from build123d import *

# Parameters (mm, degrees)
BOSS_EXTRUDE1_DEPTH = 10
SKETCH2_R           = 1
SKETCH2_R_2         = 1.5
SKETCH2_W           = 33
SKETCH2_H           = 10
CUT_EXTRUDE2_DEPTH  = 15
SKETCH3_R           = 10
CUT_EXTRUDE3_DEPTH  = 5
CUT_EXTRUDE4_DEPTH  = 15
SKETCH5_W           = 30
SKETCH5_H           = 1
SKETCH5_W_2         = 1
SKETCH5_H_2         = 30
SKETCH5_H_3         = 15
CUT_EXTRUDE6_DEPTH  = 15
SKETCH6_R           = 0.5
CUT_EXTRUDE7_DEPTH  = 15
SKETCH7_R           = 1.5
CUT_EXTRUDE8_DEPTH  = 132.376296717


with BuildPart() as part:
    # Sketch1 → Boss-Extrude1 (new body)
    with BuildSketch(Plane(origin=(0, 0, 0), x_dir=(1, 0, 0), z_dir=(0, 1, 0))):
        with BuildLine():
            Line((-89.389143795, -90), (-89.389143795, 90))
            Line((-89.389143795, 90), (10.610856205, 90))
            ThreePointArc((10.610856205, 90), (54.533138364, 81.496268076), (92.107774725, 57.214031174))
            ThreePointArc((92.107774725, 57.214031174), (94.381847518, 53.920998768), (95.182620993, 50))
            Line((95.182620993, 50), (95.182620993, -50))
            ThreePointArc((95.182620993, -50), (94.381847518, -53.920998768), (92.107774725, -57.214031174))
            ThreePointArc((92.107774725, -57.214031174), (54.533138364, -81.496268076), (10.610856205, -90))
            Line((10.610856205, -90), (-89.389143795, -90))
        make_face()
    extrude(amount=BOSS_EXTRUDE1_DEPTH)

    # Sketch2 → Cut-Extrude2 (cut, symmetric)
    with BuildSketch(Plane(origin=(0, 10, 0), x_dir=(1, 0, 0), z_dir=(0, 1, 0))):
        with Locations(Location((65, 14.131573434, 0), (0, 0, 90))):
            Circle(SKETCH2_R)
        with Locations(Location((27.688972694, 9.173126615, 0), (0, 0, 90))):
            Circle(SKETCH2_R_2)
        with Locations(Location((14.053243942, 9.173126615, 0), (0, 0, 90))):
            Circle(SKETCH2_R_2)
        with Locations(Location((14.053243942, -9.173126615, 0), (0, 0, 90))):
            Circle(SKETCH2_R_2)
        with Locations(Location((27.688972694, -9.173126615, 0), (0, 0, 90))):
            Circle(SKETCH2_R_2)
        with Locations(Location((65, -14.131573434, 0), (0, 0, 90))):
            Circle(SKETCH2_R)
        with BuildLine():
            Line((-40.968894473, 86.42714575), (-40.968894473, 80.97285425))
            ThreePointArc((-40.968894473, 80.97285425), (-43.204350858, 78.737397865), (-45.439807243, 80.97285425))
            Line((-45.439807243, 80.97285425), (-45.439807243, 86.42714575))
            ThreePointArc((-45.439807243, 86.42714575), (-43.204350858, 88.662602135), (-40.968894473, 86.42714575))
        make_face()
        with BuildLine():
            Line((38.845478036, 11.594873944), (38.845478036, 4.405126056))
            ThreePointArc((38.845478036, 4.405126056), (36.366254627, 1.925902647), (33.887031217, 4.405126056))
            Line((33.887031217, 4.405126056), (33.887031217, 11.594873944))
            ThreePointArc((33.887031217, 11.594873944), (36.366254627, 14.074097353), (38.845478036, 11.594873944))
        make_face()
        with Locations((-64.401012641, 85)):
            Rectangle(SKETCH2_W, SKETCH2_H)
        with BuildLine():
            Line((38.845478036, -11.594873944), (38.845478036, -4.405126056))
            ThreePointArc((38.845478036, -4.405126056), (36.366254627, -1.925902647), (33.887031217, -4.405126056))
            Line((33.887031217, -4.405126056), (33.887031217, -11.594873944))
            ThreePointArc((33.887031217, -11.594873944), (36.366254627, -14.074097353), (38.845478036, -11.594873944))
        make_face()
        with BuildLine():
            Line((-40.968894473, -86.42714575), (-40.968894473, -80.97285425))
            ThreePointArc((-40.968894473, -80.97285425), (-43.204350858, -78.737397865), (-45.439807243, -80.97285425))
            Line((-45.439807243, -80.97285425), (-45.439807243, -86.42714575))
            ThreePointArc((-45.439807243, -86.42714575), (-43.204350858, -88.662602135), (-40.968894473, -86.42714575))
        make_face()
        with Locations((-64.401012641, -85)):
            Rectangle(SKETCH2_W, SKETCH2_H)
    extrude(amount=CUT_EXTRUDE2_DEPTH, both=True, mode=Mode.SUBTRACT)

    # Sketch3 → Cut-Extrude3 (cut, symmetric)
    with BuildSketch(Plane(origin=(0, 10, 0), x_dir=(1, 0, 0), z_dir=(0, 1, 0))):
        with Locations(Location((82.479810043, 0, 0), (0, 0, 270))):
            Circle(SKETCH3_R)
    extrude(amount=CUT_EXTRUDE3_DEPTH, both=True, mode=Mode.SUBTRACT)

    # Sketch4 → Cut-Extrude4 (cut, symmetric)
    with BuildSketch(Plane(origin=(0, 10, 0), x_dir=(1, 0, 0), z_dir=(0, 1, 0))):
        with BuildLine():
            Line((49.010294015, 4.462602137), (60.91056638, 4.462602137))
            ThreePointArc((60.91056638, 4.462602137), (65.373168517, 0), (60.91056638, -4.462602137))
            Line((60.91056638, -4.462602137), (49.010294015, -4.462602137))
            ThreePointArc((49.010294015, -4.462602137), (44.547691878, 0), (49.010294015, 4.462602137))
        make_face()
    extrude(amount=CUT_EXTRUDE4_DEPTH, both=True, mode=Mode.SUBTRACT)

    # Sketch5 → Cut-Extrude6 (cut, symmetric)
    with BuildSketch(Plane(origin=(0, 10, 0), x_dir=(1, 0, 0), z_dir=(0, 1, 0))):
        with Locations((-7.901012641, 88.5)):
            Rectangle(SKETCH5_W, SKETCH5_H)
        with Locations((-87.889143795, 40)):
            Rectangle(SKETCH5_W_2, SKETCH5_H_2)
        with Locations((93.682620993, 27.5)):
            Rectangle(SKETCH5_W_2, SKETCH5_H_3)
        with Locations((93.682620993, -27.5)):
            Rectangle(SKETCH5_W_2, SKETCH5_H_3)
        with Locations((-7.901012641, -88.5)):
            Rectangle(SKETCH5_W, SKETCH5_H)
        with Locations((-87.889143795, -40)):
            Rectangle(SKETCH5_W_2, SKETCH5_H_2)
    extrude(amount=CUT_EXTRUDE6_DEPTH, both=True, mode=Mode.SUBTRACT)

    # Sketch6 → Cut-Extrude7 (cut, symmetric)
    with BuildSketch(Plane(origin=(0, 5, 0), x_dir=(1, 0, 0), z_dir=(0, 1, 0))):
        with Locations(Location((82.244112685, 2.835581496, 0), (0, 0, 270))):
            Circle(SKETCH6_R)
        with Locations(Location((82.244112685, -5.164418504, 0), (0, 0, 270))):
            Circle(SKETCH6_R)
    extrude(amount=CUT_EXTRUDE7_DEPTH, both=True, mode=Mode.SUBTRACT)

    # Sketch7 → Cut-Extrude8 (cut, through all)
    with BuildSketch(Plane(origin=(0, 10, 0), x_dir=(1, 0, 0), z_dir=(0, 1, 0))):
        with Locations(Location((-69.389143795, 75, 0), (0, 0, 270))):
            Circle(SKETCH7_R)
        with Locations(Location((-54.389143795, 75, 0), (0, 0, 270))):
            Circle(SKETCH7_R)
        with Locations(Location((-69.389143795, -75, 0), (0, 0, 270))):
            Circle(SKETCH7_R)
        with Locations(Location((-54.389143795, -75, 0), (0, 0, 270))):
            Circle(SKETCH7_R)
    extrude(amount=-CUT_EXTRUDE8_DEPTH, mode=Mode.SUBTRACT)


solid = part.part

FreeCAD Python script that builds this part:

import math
import FreeCAD as App
import Part
import Sketcher
from FreeCAD import Vector
Q = App.Units.Quantity


def add_polygon(sketch, points):
    """Adds a closed chain of lines whose ends are joined by coincident constraints."""
    first, n = sketch.GeometryCount, len(points)
    for a, b in zip(points, points[1:] + points[:1]):
        sketch.addGeometry(Part.LineSegment(App.Vector(*a, 0), App.Vector(*b, 0)), False)
    for i in range(n):
        sketch.addConstraint(Sketcher.Constraint("Coincident", first + i, 2, first + (i + 1) % n, 1))

doc = App.newDocument("Part")
body = doc.addObject("PartDesign::Body", "Body")

sketch1 = body.newObject("Sketcher::SketchObject", "Sketch")
sketch1.AttachmentSupport = (doc.getObject("XZ_Plane"), [""])
sketch1.MapMode = "FlatFace"
sketch1.addGeometry(Part.LineSegment(Vector(-89.389144, -90, 0), Vector(-89.389144, 90, 0)), False)
sketch1.addGeometry(Part.LineSegment(Vector(-89.389144, 90, 0), Vector(10.610856, 90, 0)), False)
sketch1.addGeometry(Part.ArcOfCircle(Part.Circle(Vector(10.610856, -27.682468, 0), Vector(0, 0, 1), 117.682468), math.radians(46.170446), math.radians(90)), False)
sketch1.addGeometry(Part.ArcOfCircle(Part.Circle(Vector(85.182621, 50, 0), Vector(0, 0, 1), 10), math.radians(0), math.radians(46.170446)), False)
sketch1.addGeometry(Part.LineSegment(Vector(95.182621, 50, 0), Vector(95.182621, -50, 0)), False)
sketch1.addGeometry(Part.ArcOfCircle(Part.Circle(Vector(85.182621, -50, 0), Vector(0, 0, 1), 10), math.radians(-46.170446), math.radians(0)), False)
sketch1.addGeometry(Part.ArcOfCircle(Part.Circle(Vector(10.610856, 27.682468, 0), Vector(0, 0, 1), 117.682468), math.radians(-90), math.radians(-46.170446)), False)
sketch1.addGeometry(Part.LineSegment(Vector(10.610856, -90, 0), Vector(-89.389144, -90, 0)), False)
sketch1.addConstraint(Sketcher.Constraint("Coincident", 0, 2, 1, 1))
sketch1.addConstraint(Sketcher.Constraint("Tangent", 1, 2, 2, 2))
sketch1.addConstraint(Sketcher.Constraint("Tangent", 2, 1, 3, 2))
sketch1.addConstraint(Sketcher.Constraint("Tangent", 3, 1, 4, 1))
sketch1.addConstraint(Sketcher.Constraint("Tangent", 4, 2, 5, 2))
sketch1.addConstraint(Sketcher.Constraint("Tangent", 5, 1, 6, 2))
sketch1.addConstraint(Sketcher.Constraint("Tangent", 6, 1, 7, 1))
sketch1.addConstraint(Sketcher.Constraint("Coincident", 7, 2, 0, 1))
sketch1.addConstraint(Sketcher.Constraint("Vertical", 0))
sketch1.addConstraint(Sketcher.Constraint("Horizontal", 1))
sketch1.addConstraint(Sketcher.Constraint("Vertical", 4))
sketch1.addConstraint(Sketcher.Constraint("Horizontal", 7))
sketch1.addConstraint(Sketcher.Constraint("Equal", 3, 5))
sketch1.addConstraint(Sketcher.Constraint("Equal", 2, 6))
sketch1.addConstraint(Sketcher.Constraint("Symmetric", 2, 3, 6, 3, -1))
sketch1.addConstraint(Sketcher.Constraint("Equal", 7, 4))
sketch1.addConstraint(Sketcher.Constraint("Radius", 3, Q("10 mm")))
sketch1.addConstraint(Sketcher.Constraint("DistanceX", 1, 1, 1, 2, Q("100 mm")))
sketch1.addConstraint(Sketcher.Constraint("DistanceY", 0, 1, 0, 2, Q("180 mm")))
sketch1.addConstraint(Sketcher.Constraint("Radius", 2, Q("117.682468 mm")))
sketch1.addConstraint(Sketcher.Constraint("DistanceX", -1, 1, 3, 3, Q("85.182621 mm")))
pad1 = body.newObject("PartDesign::Pad", "Pad")
pad1.Profile = sketch1
pad1.Length = 10
pad1.Reversed = True

sketch2 = body.newObject("Sketcher::SketchObject", "Sketch001")
sketch2.AttachmentSupport = (doc.getObject("XZ_Plane"), [""])
sketch2.MapMode = "FlatFace"
sketch2.AttachmentOffset = App.Placement(Vector(0, 0, -10), App.Rotation())
sketch2.addGeometry(Part.Circle(Vector(65, -14.131573, 0), Vector(0, 0, 1), 1), False)
sketch2.addGeometry(Part.Circle(Vector(27.688973, -9.173127, 0), Vector(0, 0, 1), 1.5), False)
sketch2.addGeometry(Part.Circle(Vector(14.053244, -9.173127, 0), Vector(0, 0, 1), 1.5), False)
sketch2.addGeometry(Part.Circle(Vector(14.053244, 9.173127, 0), Vector(0, 0, 1), 1.5), False)
sketch2.addGeometry(Part.Circle(Vector(27.688973, 9.173127, 0), Vector(0, 0, 1), 1.5), False)
sketch2.addGeometry(Part.Circle(Vector(65, 14.131573, 0), Vector(0, 0, 1), 1), False)
sketch2.addGeometry(Part.LineSegment(Vector(-40.968894, -80.972854, 0), Vector(-40.968894, -86.427146, 0)), False)
sketch2.addGeometry(Part.ArcOfCircle(Part.Circle(Vector(-43.204351, -86.427146, 0), Vector(0, 0, 1), 2.235456), math.radians(180), math.radians(360)), False)
sketch2.addGeometry(Part.LineSegment(Vector(-45.439807, -86.427146, 0), Vector(-45.439807, -80.972854, 0)), False)
sketch2.addGeometry(Part.ArcOfCircle(Part.Circle(Vector(-43.204351, -80.972854, 0), Vector(0, 0, 1), 2.235456), math.radians(0), math.radians(180)), False)
sketch2.addGeometry(Part.LineSegment(Vector(38.845478, -4.405126, 0), Vector(38.845478, -11.594874, 0)), False)
sketch2.addGeometry(Part.ArcOfCircle(Part.Circle(Vector(36.366255, -11.594874, 0), Vector(0, 0, 1), 2.479223), math.radians(-180), math.radians(0)), False)
sketch2.addGeometry(Part.LineSegment(Vector(33.887031, -11.594874, 0), Vector(33.887031, -4.405126, 0)), False)
sketch2.addGeometry(Part.ArcOfCircle(Part.Circle(Vector(36.366255, -4.405126, 0), Vector(0, 0, 1), 2.479223), math.radians(0), math.radians(180)), False)
add_polygon(sketch2, [(-80.901013, -90), (-80.901013, -80), (-47.901013, -80), (-47.901013, -90)])
sketch2.addGeometry(Part.LineSegment(Vector(38.845478, 11.594874, 0), Vector(38.845478, 4.405126, 0)), False)
sketch2.addGeometry(Part.ArcOfCircle(Part.Circle(Vector(36.366255, 4.405126, 0), Vector(0, 0, 1), 2.479223), math.radians(-180), math.radians(0)), False)
sketch2.addGeometry(Part.LineSegment(Vector(33.887031, 4.405126, 0), Vector(33.887031, 11.594874, 0)), False)
sketch2.addGeometry(Part.ArcOfCircle(Part.Circle(Vector(36.366255, 11.594874, 0), Vector(0, 0, 1), 2.479223), math.radians(0), math.radians(180)), False)
sketch2.addGeometry(Part.LineSegment(Vector(-40.968894, 86.427146, 0), Vector(-40.968894, 80.972854, 0)), False)
sketch2.addGeometry(Part.ArcOfCircle(Part.Circle(Vector(-43.204351, 80.972854, 0), Vector(0, 0, 1), 2.235456), math.radians(180), math.radians(360)), False)
sketch2.addGeometry(Part.LineSegment(Vector(-45.439807, 80.972854, 0), Vector(-45.439807, 86.427146, 0)), False)
sketch2.addGeometry(Part.ArcOfCircle(Part.Circle(Vector(-43.204351, 86.427146, 0), Vector(0, 0, 1), 2.235456), math.radians(0), math.radians(180)), False)
add_polygon(sketch2, [(-80.901013, 80), (-80.901013, 90), (-47.901013, 90), (-47.901013, 80)])
sketch2.addConstraint(Sketcher.Constraint("Tangent", 6, 2, 7, 2))
sketch2.addConstraint(Sketcher.Constraint("Tangent", 7, 1, 8, 1))
sketch2.addConstraint(Sketcher.Constraint("Tangent", 8, 2, 9, 2))
sketch2.addConstraint(Sketcher.Constraint("Tangent", 9, 1, 6, 1))
sketch2.addConstraint(Sketcher.Constraint("Tangent", 10, 2, 11, 2))
sketch2.addConstraint(Sketcher.Constraint("Tangent", 11, 1, 12, 1))
sketch2.addConstraint(Sketcher.Constraint("Tangent", 12, 2, 13, 2))
sketch2.addConstraint(Sketcher.Constraint("Tangent", 13, 1, 10, 1))
sketch2.addConstraint(Sketcher.Constraint("Tangent", 18, 2, 19, 2))
sketch2.addConstraint(Sketcher.Constraint("Tangent", 19, 1, 20, 1))
sketch2.addConstraint(Sketcher.Constraint("Tangent", 20, 2, 21, 2))
sketch2.addConstraint(Sketcher.Constraint("Tangent", 21, 1, 18, 1))
sketch2.addConstraint(Sketcher.Constraint("Tangent", 22, 2, 23, 2))
sketch2.addConstraint(Sketcher.Constraint("Tangent", 23, 1, 24, 1))
sketch2.addConstraint(Sketcher.Constraint("Tangent", 24, 2, 25, 2))
sketch2.addConstraint(Sketcher.Constraint("Tangent", 25, 1, 22, 1))
sketch2.addConstraint(Sketcher.Constraint("Vertical", 6))
sketch2.addConstraint(Sketcher.Constraint("Vertical", 8))
sketch2.addConstraint(Sketcher.Constraint("Vertical", 10))
sketch2.addConstraint(Sketcher.Constraint("Vertical", 12))
sketch2.addConstraint(Sketcher.Constraint("Vertical", 14))
sketch2.addConstraint(Sketcher.Constraint("Horizontal", 15))
sketch2.addConstraint(Sketcher.Constraint("Vertical", 16))
sketch2.addConstraint(Sketcher.Constraint("Horizontal", 17))
sketch2.addConstraint(Sketcher.Constraint("Vertical", 18))
sketch2.addConstraint(Sketcher.Constraint("Vertical", 20))
sketch2.addConstraint(Sketcher.Constraint("Vertical", 22))
sketch2.addConstraint(Sketcher.Constraint("Vertical", 24))
sketch2.addConstraint(Sketcher.Constraint("Vertical", 26))
sketch2.addConstraint(Sketcher.Constraint("Horizontal", 27))
sketch2.addConstraint(Sketcher.Constraint("Vertical", 28))
sketch2.addConstraint(Sketcher.Constraint("Horizontal", 29))
sketch2.addConstraint(Sketcher.Constraint("Equal", 1, 2))
sketch2.addConstraint(Sketcher.Constraint("Equal", 2, 3))
sketch2.addConstraint(Sketcher.Constraint("Equal", 3, 4))
sketch2.addConstraint(Sketcher.Constraint("Equal", 0, 5))
sketch2.addConstraint(Sketcher.Constraint("Equal", 13, 19))
sketch2.addConstraint(Sketcher.Constraint("Equal", 9, 23))
sketch2.addConstraint(Sketcher.Constraint("Symmetric", 2, 3, 3, 3, -1))
sketch2.addConstraint(Sketcher.Constraint("Symmetric", 1, 3, 4, 3, -1))
sketch2.addConstraint(Sketcher.Constraint("Symmetric", 0, 3, 5, 3, -1))
sketch2.addConstraint(Sketcher.Constraint("Symmetric", 13, 3, 19, 3, -1))
sketch2.addConstraint(Sketcher.Constraint("Symmetric", 9, 3, 23, 3, -1))
sketch2.addConstraint(Sketcher.Constraint("Symmetric", 17, 2, 26, 2, -1))
sketch2.addConstraint(Sketcher.Constraint("Symmetric", 15, 2, 28, 2, -1))
sketch2.addConstraint(Sketcher.Constraint("Horizontal", 1, 3, 2, 3))
sketch2.addConstraint(Sketcher.Constraint("Equal", 12, 18))
sketch2.addConstraint(Sketcher.Constraint("Equal", 8, 22))
sketch2.addConstraint(Sketcher.Constraint("Diameter", 0, Q("2 mm")))
sketch2.addConstraint(Sketcher.Constraint("Diameter", 1, Q("3 mm")))
sketch2.addConstraint(Sketcher.Constraint("DistanceX", 15, 1, 15, 2, Q("33 mm")))
sketch2.addConstraint(Sketcher.Constraint("DistanceY", 14, 1, 14, 2, Q("10 mm")))
sketch2.addConstraint(Sketcher.Constraint("DistanceX", -1, 1, 0, 3, Q("65 mm")))
sketch2.addConstraint(Sketcher.Constraint("DistanceY", 14, 2, -1, 1, Q("80 mm")))
sketch2.addConstraint(Sketcher.Constraint("DistanceY", 11, 3, 19, 3, Q("16 mm")))
sketch2.addConstraint(Sketcher.Constraint("Radius", 7, Q("2.235456 mm")))
sketch2.addConstraint(Sketcher.Constraint("Radius", 11, Q("2.479223 mm")))
sketch2.addConstraint(Sketcher.Constraint("DistanceY", 11, 3, 4, 3, Q("20.768001 mm")))
sketch2.addConstraint(Sketcher.Constraint("DistanceY", 6, 2, 6, 1, Q("5.454291 mm")))
sketch2.addConstraint(Sketcher.Constraint("DistanceY", 0, 3, 3, 3, Q("23.3047 mm")))
sketch2.addConstraint(Sketcher.Constraint("DistanceY", 10, 2, 10, 1, Q("7.189748 mm")))
sketch2.addConstraint(Sketcher.Constraint("DistanceX", 7, 3, -1, 1, Q("43.204351 mm")))
sketch2.addConstraint(Sketcher.Constraint("DistanceX", -1, 1, 10, 2, Q("38.845478 mm")))
sketch2.addConstraint(Sketcher.Constraint("DistanceX", 2, 3, 1, 3, Q("13.635729 mm")))
sketch2.addConstraint(Sketcher.Constraint("DistanceY", 7, 3, 2, 3, Q("77.254019 mm")))
sketch2.addConstraint(Sketcher.Constraint("DistanceX", 1, 3, 11, 3, Q("8.677282 mm")))
sketch2.addConstraint(Sketcher.Constraint("DistanceX", 14, 2, 9, 3, Q("37.696662 mm")))
pocket1 = body.newObject("PartDesign::Pocket", "Pocket")
pocket1.Profile = sketch2
pocket1.Length = 30
pocket1.Midplane = True

sketch3 = body.newObject("Sketcher::SketchObject", "Sketch002")
sketch3.AttachmentSupport = (doc.getObject("XZ_Plane"), [""])
sketch3.MapMode = "FlatFace"
sketch3.AttachmentOffset = App.Placement(Vector(0, 0, -10), App.Rotation())
sketch3.addGeometry(Part.Circle(Vector(82.47981, 0, 0), Vector(0, 0, 1), 10), False)
sketch3.addConstraint(Sketcher.Constraint("PointOnObject", 0, 3, -1))
sketch3.addConstraint(Sketcher.Constraint("Diameter", 0, Q("20 mm")))
sketch3.addConstraint(Sketcher.Constraint("DistanceX", -1, 1, 0, 3, Q("82.47981 mm")))
pocket2 = body.newObject("PartDesign::Pocket", "Pocket001")
pocket2.Profile = sketch3
pocket2.Length = 10
pocket2.Midplane = True

sketch4 = body.newObject("Sketcher::SketchObject", "Sketch003")
sketch4.AttachmentSupport = (doc.getObject("XZ_Plane"), [""])
sketch4.MapMode = "FlatFace"
sketch4.AttachmentOffset = App.Placement(Vector(0, 0, -10), App.Rotation())
sketch4.addGeometry(Part.LineSegment(Vector(60.910566, -4.462602, 0), Vector(49.010294, -4.462602, 0)), False)
sketch4.addGeometry(Part.ArcOfCircle(Part.Circle(Vector(49.010294, 0, 0), Vector(0, 0, 1), 4.462602), math.radians(90), math.radians(270)), False)
sketch4.addGeometry(Part.LineSegment(Vector(49.010294, 4.462602, 0), Vector(60.910566, 4.462602, 0)), False)
sketch4.addGeometry(Part.ArcOfCircle(Part.Circle(Vector(60.910566, 0, 0), Vector(0, 0, 1), 4.462602), math.radians(-90), math.radians(90)), False)
sketch4.addConstraint(Sketcher.Constraint("Tangent", 0, 2, 1, 2))
sketch4.addConstraint(Sketcher.Constraint("Tangent", 1, 1, 2, 1))
sketch4.addConstraint(Sketcher.Constraint("Tangent", 2, 2, 3, 2))
sketch4.addConstraint(Sketcher.Constraint("Tangent", 3, 1, 0, 1))
sketch4.addConstraint(Sketcher.Constraint("Horizontal", 0))
sketch4.addConstraint(Sketcher.Constraint("Horizontal", 2))
sketch4.addConstraint(Sketcher.Constraint("PointOnObject", 1, 3, -1))
sketch4.addConstraint(Sketcher.Constraint("Radius", 1, Q("4.462602 mm")))
sketch4.addConstraint(Sketcher.Constraint("DistanceX", 0, 2, 0, 1, Q("11.900272 mm")))
sketch4.addConstraint(Sketcher.Constraint("DistanceX", -1, 1, 1, 3, Q("49.010294 mm")))
pocket3 = body.newObject("PartDesign::Pocket", "Pocket002")
pocket3.Profile = sketch4
pocket3.Length = 30
pocket3.Midplane = True

sketch5 = body.newObject("Sketcher::SketchObject", "Sketch004")
sketch5.AttachmentSupport = (doc.getObject("XZ_Plane"), [""])
sketch5.MapMode = "FlatFace"
sketch5.AttachmentOffset = App.Placement(Vector(0, 0, -10), App.Rotation())
add_polygon(sketch5, [(-22.901013, -89), (-22.901013, -88), (7.098987, -88), (7.098987, -89)])
add_polygon(sketch5, [(-88.389144, -55), (-88.389144, -25), (-87.389144, -25), (-87.389144, -55)])
add_polygon(sketch5, [(93.182621, -35), (93.182621, -20), (94.182621, -20), (94.182621, -35)])
add_polygon(sketch5, [(93.182621, 20), (93.182621, 35), (94.182621, 35), (94.182621, 20)])
add_polygon(sketch5, [(-22.901013, 88), (-22.901013, 89), (7.098987, 89), (7.098987, 88)])
add_polygon(sketch5, [(-88.389144, 25), (-88.389144, 55), (-87.389144, 55), (-87.389144, 25)])
sketch5.addConstraint(Sketcher.Constraint("Vertical", 0))
sketch5.addConstraint(Sketcher.Constraint("Horizontal", 1))
sketch5.addConstraint(Sketcher.Constraint("Vertical", 2))
sketch5.addConstraint(Sketcher.Constraint("Horizontal", 3))
sketch5.addConstraint(Sketcher.Constraint("Vertical", 4))
sketch5.addConstraint(Sketcher.Constraint("Horizontal", 5))
sketch5.addConstraint(Sketcher.Constraint("Vertical", 6))
sketch5.addConstraint(Sketcher.Constraint("Horizontal", 7))
sketch5.addConstraint(Sketcher.Constraint("Vertical", 8))
sketch5.addConstraint(Sketcher.Constraint("Horizontal", 9))
sketch5.addConstraint(Sketcher.Constraint("Vertical", 10))
sketch5.addConstraint(Sketcher.Constraint("Horizontal", 11))
sketch5.addConstraint(Sketcher.Constraint("Vertical", 12))
sketch5.addConstraint(Sketcher.Constraint("Horizontal", 13))
sketch5.addConstraint(Sketcher.Constraint("Vertical", 14))
sketch5.addConstraint(Sketcher.Constraint("Horizontal", 15))
sketch5.addConstraint(Sketcher.Constraint("Vertical", 16))
sketch5.addConstraint(Sketcher.Constraint("Horizontal", 17))
sketch5.addConstraint(Sketcher.Constraint("Vertical", 18))
sketch5.addConstraint(Sketcher.Constraint("Horizontal", 19))
sketch5.addConstraint(Sketcher.Constraint("Vertical", 20))
sketch5.addConstraint(Sketcher.Constraint("Horizontal", 21))
sketch5.addConstraint(Sketcher.Constraint("Vertical", 22))
sketch5.addConstraint(Sketcher.Constraint("Horizontal", 23))
sketch5.addConstraint(Sketcher.Constraint("Symmetric", 11, 2, 12, 2, -1))
sketch5.addConstraint(Sketcher.Constraint("Symmetric", 9, 2, 14, 2, -1))
sketch5.addConstraint(Sketcher.Constraint("Symmetric", 3, 2, 16, 2, -1))
sketch5.addConstraint(Sketcher.Constraint("Symmetric", 1, 2, 18, 2, -1))
sketch5.addConstraint(Sketcher.Constraint("Symmetric", 7, 2, 20, 2, -1))
sketch5.addConstraint(Sketcher.Constraint("Symmetric", 5, 2, 22, 2, -1))
sketch5.addConstraint(Sketcher.Constraint("Equal", 7, 9))
sketch5.addConstraint(Sketcher.Constraint("Equal", 23, 0))
sketch5.addConstraint(Sketcher.Constraint("Equal", 19, 4))
sketch5.addConstraint(Sketcher.Constraint("DistanceX", 1, 1, 1, 2, Q("30 mm")))
sketch5.addConstraint(Sketcher.Constraint("DistanceX", 5, 1, 5, 2, Q("1 mm")))
sketch5.addConstraint(Sketcher.Constraint("DistanceY", 8, 1, 8, 2, Q("15 mm")))
sketch5.addConstraint(Sketcher.Constraint("DistanceY", 0, 2, -1, 1, Q("88 mm")))
sketch5.addConstraint(Sketcher.Constraint("DistanceY", 4, 2, -1, 1, Q("25 mm")))
sketch5.addConstraint(Sketcher.Constraint("DistanceY", 8, 2, -1, 1, Q("20 mm")))
sketch5.addConstraint(Sketcher.Constraint("DistanceX", -1, 1, 8, 2, Q("93.182621 mm")))
sketch5.addConstraint(Sketcher.Constraint("DistanceX", 4, 2, 0, 2, Q("65.488131 mm")))
sketch5.addConstraint(Sketcher.Constraint("DistanceX", 0, 2, -1, 1, Q("22.901013 mm")))
pocket4 = body.newObject("PartDesign::Pocket", "Pocket003")
pocket4.Profile = sketch5
pocket4.Length = 30
pocket4.Midplane = True

sketch6 = body.newObject("Sketcher::SketchObject", "Sketch005")
sketch6.AttachmentSupport = (doc.getObject("XZ_Plane"), [""])
sketch6.MapMode = "FlatFace"
sketch6.AttachmentOffset = App.Placement(Vector(0, 0, -5), App.Rotation())
sketch6.addGeometry(Part.Circle(Vector(82.244113, -2.835581, 0), Vector(0, 0, 1), 0.5), False)
sketch6.addGeometry(Part.Circle(Vector(82.244113, 5.164419, 0), Vector(0, 0, 1), 0.5), False)
sketch6.addConstraint(Sketcher.Constraint("Equal", 0, 1))
sketch6.addConstraint(Sketcher.Constraint("Vertical", 0, 3, 1, 3))
sketch6.addConstraint(Sketcher.Constraint("Diameter", 0, Q("1 mm")))
sketch6.addConstraint(Sketcher.Constraint("DistanceY", 0, 3, 1, 3, Q("8 mm")))
sketch6.addConstraint(Sketcher.Constraint("DistanceY", 0, 3, -1, 1, Q("2.835581 mm")))
sketch6.addConstraint(Sketcher.Constraint("DistanceX", -1, 1, 0, 3, Q("82.244113 mm")))
pocket5 = body.newObject("PartDesign::Pocket", "Pocket004")
pocket5.Profile = sketch6
pocket5.Length = 30
pocket5.Midplane = True

sketch7 = body.newObject("Sketcher::SketchObject", "Sketch006")
sketch7.AttachmentSupport = (doc.getObject("XZ_Plane"), [""])
sketch7.MapMode = "FlatFace"
sketch7.AttachmentOffset = App.Placement(Vector(0, 0, -10), App.Rotation())
sketch7.addGeometry(Part.Circle(Vector(-69.389144, -75, 0), Vector(0, 0, 1), 1.5), False)
sketch7.addGeometry(Part.Circle(Vector(-54.389144, -75, 0), Vector(0, 0, 1), 1.5), False)
sketch7.addGeometry(Part.Circle(Vector(-69.389144, 75, 0), Vector(0, 0, 1), 1.5), False)
sketch7.addGeometry(Part.Circle(Vector(-54.389144, 75, 0), Vector(0, 0, 1), 1.5), False)
sketch7.addConstraint(Sketcher.Constraint("Equal", 0, 1))
sketch7.addConstraint(Sketcher.Constraint("Equal", 1, 2))
sketch7.addConstraint(Sketcher.Constraint("Equal", 2, 3))
sketch7.addConstraint(Sketcher.Constraint("Symmetric", 0, 3, 2, 3, -1))
sketch7.addConstraint(Sketcher.Constraint("Symmetric", 1, 3, 3, 3, -1))
sketch7.addConstraint(Sketcher.Constraint("Horizontal", 0, 3, 1, 3))
sketch7.addConstraint(Sketcher.Constraint("Diameter", 0, Q("3 mm")))
sketch7.addConstraint(Sketcher.Constraint("DistanceY", 0, 3, -1, 1, Q("75 mm")))
sketch7.addConstraint(Sketcher.Constraint("DistanceX", 0, 3, 1, 3, Q("15 mm")))
sketch7.addConstraint(Sketcher.Constraint("DistanceX", 0, 3, -1, 1, Q("69.389144 mm")))
pocket6 = body.newObject("PartDesign::Pocket", "Pocket005")
pocket6.Profile = sketch7
pocket6.Type = "ThroughAll"
pocket6.Reversed = True

doc.recompute()
